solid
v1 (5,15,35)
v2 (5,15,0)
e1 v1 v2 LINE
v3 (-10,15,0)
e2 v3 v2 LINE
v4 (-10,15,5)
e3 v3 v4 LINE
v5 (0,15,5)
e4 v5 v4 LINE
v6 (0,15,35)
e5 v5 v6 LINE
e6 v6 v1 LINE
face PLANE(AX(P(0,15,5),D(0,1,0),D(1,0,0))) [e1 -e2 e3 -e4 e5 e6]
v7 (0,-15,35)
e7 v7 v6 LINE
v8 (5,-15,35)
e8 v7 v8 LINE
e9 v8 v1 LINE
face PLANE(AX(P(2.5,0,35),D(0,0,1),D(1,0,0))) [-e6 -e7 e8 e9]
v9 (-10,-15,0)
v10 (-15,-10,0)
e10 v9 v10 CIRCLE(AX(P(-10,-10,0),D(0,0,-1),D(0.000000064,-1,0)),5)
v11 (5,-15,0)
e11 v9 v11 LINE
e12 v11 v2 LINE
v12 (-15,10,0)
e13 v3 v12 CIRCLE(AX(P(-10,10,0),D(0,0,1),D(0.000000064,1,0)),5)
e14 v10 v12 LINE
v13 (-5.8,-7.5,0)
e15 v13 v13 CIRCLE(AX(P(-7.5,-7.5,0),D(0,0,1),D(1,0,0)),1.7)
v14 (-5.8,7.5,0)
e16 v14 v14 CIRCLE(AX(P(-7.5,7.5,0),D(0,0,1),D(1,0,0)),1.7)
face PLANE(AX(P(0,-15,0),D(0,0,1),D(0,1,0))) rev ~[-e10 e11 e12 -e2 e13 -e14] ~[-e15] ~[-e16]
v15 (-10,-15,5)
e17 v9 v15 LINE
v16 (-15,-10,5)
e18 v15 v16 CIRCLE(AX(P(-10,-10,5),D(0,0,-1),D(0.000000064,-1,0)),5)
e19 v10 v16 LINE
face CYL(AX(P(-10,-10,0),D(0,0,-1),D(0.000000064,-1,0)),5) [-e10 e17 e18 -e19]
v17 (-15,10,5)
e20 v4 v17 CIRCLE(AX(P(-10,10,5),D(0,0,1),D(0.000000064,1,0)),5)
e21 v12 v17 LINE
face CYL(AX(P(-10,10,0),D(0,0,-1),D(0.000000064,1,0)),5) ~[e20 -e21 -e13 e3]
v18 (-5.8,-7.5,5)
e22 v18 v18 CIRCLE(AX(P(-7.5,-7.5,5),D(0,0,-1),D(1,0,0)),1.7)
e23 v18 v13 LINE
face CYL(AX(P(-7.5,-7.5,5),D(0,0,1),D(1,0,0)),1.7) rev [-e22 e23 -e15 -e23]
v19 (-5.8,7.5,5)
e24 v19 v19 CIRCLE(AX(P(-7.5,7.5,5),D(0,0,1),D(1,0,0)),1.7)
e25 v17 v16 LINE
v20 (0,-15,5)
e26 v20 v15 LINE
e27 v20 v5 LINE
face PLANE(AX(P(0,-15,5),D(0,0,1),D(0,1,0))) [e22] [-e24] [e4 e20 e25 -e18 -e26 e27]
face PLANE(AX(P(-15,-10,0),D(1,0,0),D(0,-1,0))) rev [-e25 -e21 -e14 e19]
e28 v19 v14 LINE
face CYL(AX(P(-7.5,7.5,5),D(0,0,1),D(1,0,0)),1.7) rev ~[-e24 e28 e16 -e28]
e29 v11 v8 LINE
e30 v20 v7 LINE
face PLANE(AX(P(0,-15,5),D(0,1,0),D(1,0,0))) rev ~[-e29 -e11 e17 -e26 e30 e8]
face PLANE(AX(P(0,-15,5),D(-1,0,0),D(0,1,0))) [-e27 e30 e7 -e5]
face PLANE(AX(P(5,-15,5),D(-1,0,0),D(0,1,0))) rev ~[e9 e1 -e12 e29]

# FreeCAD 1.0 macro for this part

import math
import FreeCAD as App
import Part
import Sketcher
from FreeCAD import Vector


def add_polygon(sketch, points):
    """Adds a closed chain of lines whose ends are joined by coincident constraints."""
    first, n = sketch.GeometryCount, len(points)
    for a, b in zip(points, points[1:] + points[:1]):
        sketch.addGeometry(Part.LineSegment(App.Vector(*a, 0), App.Vector(*b, 0)), False)
    for i in range(n):
        sketch.addConstraint(Sketcher.Constraint("Coincident", first + i, 2, first + (i + 1) % n, 1))

doc = App.newDocument("Part")
body = doc.addObject("PartDesign::Body", "Body")

# Sketch on XY plane
sketch1 = doc.addObject("Sketcher::SketchObject", "Sketch")
body.addObject(sketch1)
sketch1.AttachmentSupport = (doc.XY_Plane, [""])
sketch1.MapMode = "FlatFace"
sketch1.addGeometry([
    Part.LineSegment(Vector(-15, 0, 0), Vector(0, 0, 0)),  # 0
    Part.LineSegment(Vector(0, 0, 0), Vector(0, 15, 0)),  # 1
    Part.LineSegment(Vector(0, 15, 0), Vector(-10, 15, 0)),  # 2
    Part.ArcOfCircle(Part.Circle(Vector(-10, 10, 0), Vector(0, 0, 1), 5), math.radians(89.999996), math.radians(180.000004)),  # 3
    Part.LineSegment(Vector(-15, 10, 0), Vector(-15, 0, 0)),  # 4
], False)
sketch1.addConstraint([
    Sketcher.Constraint("Coincident", 0, 2, 1, 1),
    Sketcher.Constraint("Coincident", 1, 2, 2, 1),
    Sketcher.Constraint("Tangent", 2, 2, 3, 1),
    Sketcher.Constraint("Tangent", 3, 2, 4, 1),
    Sketcher.Constraint("Coincident", 4, 2, 0, 1),
    Sketcher.Constraint("Horizontal", 0),
    Sketcher.Constraint("Vertical", 1),
    Sketcher.Constraint("Horizontal", 2),
    Sketcher.Constraint("Vertical", 4),
    Sketcher.Constraint("Coincident", 0, 2, -1, 1),
    Sketcher.Constraint("Equal", 0, 1),
    Sketcher.Constraint("Radius", 3, 5.0),
    Sketcher.Constraint("DistanceX", 0, 1, 0, 2, 15.0),
])
pad1 = doc.addObject("PartDesign::Pad", "Pad")
body.addObject(pad1)
pad1.Profile = sketch1
pad1.Length = 5
doc.recompute()

mirrored = doc.addObject("PartDesign::Mirrored", "Mirrored")
body.addObject(mirrored)
mirrored.Originals = [pad1]
mirrored.MirrorPlane = (doc.XZ_Plane, [""])
body.Tip = mirrored

# Sketch on XY plane
sketch2 = doc.addObject("Sketcher::SketchObject", "Sketch001")
body.addObject(sketch2)
sketch2.AttachmentSupport = (doc.XY_Plane, [""])
sketch2.MapMode = "FlatFace"
sketch2.AttachmentOffset = App.Placement(Vector(0, 0, 5), App.Rotation())
sketch2.addGeometry(Part.Circle(Vector(-7.5, 7.5, 0), Vector(0, 0, 1), 1.7), False)
sketch2.addConstraint([
    Sketcher.Constraint("Diameter", 0, 3.4),
    Sketcher.Constraint("DistanceX", 0, 3, -1, 1, 7.5),
    Sketcher.Constraint("DistanceY", -1, 1, 0, 3, 7.5),
])
pocket1 = doc.addObject("PartDesign::Pocket", "Pocket")
body.addObject(pocket1)
pocket1.Profile = sketch2
pocket1.Type = "ThroughAll"
doc.recompute()

mirrored2 = doc.addObject("PartDesign::Mirrored", "Mirrored001")
body.addObject(mirrored2)
mirrored2.Originals = [pocket1]
mirrored2.MirrorPlane = (doc.XZ_Plane, [""])
body.Tip = mirrored2

# Sketch on YZ plane
sketch3 = doc.addObject("Sketcher::SketchObject", "Sketch002")
body.addObject(sketch3)
sketch3.AttachmentSupport = (doc.YZ_Plane, [""])
sketch3.MapMode = "FlatFace"
add_polygon(sketch3, [(-15, 5), (-15, 0), (15, 0), (15, 5)])  # lines 0-3
sketch3.addConstraint([
    Sketcher.Constraint("Vertical", 0),
    Sketcher.Constraint("Horizontal", 1),
    Sketcher.Constraint("Vertical", 2),
    Sketcher.Constraint("Horizontal", 3),
    Sketcher.Constraint("Symmetric", 0, 2, 1, 2, -1, 1),
    Sketcher.Constraint("DistanceX", 1, 1, 1, 2, 30.0),
    Sketcher.Constraint("DistanceY", 0, 2, 0, 1, 5.0),
])
pad2 = doc.addObject("PartDesign::Pad", "Pad001")
body.addObject(pad2)
pad2.Profile = sketch3
pad2.Length = 5

# Sketch on XY plane
sketch4 = doc.addObject("Sketcher::SketchObject", "Sketch003")
body.addObject(sketch4)
sketch4.AttachmentSupport = (doc.XY_Plane, [""])
sketch4.MapMode = "FlatFace"
sketch4.AttachmentOffset = App.Placement(Vector(0, 0, 5), App.Rotation())
add_polygon(sketch4, [(0, 15), (0, -15), (5, -15), (5, 15)])  # lines 0-3
sketch4.addConstraint([
    Sketcher.Constraint("Vertical", 0),
    Sketcher.Constraint("Horizontal", 1),
    Sketcher.Constraint("Vertical", 2),
    Sketcher.Constraint("Horizontal", 3),
    Sketcher.Constraint("Symmetric", 0, 2, 3, 2, -1, 1),
    Sketcher.Constraint("DistanceX", 1, 1, 1, 2, 5.0),
    Sketcher.Constraint("DistanceY", 0, 2, 0, 1, 30.0),
])
pad3 = doc.addObject("PartDesign::Pad", "Pad002")
body.addObject(pad3)
pad3.Profile = sketch4
pad3.Length = 30

doc.recompute()
